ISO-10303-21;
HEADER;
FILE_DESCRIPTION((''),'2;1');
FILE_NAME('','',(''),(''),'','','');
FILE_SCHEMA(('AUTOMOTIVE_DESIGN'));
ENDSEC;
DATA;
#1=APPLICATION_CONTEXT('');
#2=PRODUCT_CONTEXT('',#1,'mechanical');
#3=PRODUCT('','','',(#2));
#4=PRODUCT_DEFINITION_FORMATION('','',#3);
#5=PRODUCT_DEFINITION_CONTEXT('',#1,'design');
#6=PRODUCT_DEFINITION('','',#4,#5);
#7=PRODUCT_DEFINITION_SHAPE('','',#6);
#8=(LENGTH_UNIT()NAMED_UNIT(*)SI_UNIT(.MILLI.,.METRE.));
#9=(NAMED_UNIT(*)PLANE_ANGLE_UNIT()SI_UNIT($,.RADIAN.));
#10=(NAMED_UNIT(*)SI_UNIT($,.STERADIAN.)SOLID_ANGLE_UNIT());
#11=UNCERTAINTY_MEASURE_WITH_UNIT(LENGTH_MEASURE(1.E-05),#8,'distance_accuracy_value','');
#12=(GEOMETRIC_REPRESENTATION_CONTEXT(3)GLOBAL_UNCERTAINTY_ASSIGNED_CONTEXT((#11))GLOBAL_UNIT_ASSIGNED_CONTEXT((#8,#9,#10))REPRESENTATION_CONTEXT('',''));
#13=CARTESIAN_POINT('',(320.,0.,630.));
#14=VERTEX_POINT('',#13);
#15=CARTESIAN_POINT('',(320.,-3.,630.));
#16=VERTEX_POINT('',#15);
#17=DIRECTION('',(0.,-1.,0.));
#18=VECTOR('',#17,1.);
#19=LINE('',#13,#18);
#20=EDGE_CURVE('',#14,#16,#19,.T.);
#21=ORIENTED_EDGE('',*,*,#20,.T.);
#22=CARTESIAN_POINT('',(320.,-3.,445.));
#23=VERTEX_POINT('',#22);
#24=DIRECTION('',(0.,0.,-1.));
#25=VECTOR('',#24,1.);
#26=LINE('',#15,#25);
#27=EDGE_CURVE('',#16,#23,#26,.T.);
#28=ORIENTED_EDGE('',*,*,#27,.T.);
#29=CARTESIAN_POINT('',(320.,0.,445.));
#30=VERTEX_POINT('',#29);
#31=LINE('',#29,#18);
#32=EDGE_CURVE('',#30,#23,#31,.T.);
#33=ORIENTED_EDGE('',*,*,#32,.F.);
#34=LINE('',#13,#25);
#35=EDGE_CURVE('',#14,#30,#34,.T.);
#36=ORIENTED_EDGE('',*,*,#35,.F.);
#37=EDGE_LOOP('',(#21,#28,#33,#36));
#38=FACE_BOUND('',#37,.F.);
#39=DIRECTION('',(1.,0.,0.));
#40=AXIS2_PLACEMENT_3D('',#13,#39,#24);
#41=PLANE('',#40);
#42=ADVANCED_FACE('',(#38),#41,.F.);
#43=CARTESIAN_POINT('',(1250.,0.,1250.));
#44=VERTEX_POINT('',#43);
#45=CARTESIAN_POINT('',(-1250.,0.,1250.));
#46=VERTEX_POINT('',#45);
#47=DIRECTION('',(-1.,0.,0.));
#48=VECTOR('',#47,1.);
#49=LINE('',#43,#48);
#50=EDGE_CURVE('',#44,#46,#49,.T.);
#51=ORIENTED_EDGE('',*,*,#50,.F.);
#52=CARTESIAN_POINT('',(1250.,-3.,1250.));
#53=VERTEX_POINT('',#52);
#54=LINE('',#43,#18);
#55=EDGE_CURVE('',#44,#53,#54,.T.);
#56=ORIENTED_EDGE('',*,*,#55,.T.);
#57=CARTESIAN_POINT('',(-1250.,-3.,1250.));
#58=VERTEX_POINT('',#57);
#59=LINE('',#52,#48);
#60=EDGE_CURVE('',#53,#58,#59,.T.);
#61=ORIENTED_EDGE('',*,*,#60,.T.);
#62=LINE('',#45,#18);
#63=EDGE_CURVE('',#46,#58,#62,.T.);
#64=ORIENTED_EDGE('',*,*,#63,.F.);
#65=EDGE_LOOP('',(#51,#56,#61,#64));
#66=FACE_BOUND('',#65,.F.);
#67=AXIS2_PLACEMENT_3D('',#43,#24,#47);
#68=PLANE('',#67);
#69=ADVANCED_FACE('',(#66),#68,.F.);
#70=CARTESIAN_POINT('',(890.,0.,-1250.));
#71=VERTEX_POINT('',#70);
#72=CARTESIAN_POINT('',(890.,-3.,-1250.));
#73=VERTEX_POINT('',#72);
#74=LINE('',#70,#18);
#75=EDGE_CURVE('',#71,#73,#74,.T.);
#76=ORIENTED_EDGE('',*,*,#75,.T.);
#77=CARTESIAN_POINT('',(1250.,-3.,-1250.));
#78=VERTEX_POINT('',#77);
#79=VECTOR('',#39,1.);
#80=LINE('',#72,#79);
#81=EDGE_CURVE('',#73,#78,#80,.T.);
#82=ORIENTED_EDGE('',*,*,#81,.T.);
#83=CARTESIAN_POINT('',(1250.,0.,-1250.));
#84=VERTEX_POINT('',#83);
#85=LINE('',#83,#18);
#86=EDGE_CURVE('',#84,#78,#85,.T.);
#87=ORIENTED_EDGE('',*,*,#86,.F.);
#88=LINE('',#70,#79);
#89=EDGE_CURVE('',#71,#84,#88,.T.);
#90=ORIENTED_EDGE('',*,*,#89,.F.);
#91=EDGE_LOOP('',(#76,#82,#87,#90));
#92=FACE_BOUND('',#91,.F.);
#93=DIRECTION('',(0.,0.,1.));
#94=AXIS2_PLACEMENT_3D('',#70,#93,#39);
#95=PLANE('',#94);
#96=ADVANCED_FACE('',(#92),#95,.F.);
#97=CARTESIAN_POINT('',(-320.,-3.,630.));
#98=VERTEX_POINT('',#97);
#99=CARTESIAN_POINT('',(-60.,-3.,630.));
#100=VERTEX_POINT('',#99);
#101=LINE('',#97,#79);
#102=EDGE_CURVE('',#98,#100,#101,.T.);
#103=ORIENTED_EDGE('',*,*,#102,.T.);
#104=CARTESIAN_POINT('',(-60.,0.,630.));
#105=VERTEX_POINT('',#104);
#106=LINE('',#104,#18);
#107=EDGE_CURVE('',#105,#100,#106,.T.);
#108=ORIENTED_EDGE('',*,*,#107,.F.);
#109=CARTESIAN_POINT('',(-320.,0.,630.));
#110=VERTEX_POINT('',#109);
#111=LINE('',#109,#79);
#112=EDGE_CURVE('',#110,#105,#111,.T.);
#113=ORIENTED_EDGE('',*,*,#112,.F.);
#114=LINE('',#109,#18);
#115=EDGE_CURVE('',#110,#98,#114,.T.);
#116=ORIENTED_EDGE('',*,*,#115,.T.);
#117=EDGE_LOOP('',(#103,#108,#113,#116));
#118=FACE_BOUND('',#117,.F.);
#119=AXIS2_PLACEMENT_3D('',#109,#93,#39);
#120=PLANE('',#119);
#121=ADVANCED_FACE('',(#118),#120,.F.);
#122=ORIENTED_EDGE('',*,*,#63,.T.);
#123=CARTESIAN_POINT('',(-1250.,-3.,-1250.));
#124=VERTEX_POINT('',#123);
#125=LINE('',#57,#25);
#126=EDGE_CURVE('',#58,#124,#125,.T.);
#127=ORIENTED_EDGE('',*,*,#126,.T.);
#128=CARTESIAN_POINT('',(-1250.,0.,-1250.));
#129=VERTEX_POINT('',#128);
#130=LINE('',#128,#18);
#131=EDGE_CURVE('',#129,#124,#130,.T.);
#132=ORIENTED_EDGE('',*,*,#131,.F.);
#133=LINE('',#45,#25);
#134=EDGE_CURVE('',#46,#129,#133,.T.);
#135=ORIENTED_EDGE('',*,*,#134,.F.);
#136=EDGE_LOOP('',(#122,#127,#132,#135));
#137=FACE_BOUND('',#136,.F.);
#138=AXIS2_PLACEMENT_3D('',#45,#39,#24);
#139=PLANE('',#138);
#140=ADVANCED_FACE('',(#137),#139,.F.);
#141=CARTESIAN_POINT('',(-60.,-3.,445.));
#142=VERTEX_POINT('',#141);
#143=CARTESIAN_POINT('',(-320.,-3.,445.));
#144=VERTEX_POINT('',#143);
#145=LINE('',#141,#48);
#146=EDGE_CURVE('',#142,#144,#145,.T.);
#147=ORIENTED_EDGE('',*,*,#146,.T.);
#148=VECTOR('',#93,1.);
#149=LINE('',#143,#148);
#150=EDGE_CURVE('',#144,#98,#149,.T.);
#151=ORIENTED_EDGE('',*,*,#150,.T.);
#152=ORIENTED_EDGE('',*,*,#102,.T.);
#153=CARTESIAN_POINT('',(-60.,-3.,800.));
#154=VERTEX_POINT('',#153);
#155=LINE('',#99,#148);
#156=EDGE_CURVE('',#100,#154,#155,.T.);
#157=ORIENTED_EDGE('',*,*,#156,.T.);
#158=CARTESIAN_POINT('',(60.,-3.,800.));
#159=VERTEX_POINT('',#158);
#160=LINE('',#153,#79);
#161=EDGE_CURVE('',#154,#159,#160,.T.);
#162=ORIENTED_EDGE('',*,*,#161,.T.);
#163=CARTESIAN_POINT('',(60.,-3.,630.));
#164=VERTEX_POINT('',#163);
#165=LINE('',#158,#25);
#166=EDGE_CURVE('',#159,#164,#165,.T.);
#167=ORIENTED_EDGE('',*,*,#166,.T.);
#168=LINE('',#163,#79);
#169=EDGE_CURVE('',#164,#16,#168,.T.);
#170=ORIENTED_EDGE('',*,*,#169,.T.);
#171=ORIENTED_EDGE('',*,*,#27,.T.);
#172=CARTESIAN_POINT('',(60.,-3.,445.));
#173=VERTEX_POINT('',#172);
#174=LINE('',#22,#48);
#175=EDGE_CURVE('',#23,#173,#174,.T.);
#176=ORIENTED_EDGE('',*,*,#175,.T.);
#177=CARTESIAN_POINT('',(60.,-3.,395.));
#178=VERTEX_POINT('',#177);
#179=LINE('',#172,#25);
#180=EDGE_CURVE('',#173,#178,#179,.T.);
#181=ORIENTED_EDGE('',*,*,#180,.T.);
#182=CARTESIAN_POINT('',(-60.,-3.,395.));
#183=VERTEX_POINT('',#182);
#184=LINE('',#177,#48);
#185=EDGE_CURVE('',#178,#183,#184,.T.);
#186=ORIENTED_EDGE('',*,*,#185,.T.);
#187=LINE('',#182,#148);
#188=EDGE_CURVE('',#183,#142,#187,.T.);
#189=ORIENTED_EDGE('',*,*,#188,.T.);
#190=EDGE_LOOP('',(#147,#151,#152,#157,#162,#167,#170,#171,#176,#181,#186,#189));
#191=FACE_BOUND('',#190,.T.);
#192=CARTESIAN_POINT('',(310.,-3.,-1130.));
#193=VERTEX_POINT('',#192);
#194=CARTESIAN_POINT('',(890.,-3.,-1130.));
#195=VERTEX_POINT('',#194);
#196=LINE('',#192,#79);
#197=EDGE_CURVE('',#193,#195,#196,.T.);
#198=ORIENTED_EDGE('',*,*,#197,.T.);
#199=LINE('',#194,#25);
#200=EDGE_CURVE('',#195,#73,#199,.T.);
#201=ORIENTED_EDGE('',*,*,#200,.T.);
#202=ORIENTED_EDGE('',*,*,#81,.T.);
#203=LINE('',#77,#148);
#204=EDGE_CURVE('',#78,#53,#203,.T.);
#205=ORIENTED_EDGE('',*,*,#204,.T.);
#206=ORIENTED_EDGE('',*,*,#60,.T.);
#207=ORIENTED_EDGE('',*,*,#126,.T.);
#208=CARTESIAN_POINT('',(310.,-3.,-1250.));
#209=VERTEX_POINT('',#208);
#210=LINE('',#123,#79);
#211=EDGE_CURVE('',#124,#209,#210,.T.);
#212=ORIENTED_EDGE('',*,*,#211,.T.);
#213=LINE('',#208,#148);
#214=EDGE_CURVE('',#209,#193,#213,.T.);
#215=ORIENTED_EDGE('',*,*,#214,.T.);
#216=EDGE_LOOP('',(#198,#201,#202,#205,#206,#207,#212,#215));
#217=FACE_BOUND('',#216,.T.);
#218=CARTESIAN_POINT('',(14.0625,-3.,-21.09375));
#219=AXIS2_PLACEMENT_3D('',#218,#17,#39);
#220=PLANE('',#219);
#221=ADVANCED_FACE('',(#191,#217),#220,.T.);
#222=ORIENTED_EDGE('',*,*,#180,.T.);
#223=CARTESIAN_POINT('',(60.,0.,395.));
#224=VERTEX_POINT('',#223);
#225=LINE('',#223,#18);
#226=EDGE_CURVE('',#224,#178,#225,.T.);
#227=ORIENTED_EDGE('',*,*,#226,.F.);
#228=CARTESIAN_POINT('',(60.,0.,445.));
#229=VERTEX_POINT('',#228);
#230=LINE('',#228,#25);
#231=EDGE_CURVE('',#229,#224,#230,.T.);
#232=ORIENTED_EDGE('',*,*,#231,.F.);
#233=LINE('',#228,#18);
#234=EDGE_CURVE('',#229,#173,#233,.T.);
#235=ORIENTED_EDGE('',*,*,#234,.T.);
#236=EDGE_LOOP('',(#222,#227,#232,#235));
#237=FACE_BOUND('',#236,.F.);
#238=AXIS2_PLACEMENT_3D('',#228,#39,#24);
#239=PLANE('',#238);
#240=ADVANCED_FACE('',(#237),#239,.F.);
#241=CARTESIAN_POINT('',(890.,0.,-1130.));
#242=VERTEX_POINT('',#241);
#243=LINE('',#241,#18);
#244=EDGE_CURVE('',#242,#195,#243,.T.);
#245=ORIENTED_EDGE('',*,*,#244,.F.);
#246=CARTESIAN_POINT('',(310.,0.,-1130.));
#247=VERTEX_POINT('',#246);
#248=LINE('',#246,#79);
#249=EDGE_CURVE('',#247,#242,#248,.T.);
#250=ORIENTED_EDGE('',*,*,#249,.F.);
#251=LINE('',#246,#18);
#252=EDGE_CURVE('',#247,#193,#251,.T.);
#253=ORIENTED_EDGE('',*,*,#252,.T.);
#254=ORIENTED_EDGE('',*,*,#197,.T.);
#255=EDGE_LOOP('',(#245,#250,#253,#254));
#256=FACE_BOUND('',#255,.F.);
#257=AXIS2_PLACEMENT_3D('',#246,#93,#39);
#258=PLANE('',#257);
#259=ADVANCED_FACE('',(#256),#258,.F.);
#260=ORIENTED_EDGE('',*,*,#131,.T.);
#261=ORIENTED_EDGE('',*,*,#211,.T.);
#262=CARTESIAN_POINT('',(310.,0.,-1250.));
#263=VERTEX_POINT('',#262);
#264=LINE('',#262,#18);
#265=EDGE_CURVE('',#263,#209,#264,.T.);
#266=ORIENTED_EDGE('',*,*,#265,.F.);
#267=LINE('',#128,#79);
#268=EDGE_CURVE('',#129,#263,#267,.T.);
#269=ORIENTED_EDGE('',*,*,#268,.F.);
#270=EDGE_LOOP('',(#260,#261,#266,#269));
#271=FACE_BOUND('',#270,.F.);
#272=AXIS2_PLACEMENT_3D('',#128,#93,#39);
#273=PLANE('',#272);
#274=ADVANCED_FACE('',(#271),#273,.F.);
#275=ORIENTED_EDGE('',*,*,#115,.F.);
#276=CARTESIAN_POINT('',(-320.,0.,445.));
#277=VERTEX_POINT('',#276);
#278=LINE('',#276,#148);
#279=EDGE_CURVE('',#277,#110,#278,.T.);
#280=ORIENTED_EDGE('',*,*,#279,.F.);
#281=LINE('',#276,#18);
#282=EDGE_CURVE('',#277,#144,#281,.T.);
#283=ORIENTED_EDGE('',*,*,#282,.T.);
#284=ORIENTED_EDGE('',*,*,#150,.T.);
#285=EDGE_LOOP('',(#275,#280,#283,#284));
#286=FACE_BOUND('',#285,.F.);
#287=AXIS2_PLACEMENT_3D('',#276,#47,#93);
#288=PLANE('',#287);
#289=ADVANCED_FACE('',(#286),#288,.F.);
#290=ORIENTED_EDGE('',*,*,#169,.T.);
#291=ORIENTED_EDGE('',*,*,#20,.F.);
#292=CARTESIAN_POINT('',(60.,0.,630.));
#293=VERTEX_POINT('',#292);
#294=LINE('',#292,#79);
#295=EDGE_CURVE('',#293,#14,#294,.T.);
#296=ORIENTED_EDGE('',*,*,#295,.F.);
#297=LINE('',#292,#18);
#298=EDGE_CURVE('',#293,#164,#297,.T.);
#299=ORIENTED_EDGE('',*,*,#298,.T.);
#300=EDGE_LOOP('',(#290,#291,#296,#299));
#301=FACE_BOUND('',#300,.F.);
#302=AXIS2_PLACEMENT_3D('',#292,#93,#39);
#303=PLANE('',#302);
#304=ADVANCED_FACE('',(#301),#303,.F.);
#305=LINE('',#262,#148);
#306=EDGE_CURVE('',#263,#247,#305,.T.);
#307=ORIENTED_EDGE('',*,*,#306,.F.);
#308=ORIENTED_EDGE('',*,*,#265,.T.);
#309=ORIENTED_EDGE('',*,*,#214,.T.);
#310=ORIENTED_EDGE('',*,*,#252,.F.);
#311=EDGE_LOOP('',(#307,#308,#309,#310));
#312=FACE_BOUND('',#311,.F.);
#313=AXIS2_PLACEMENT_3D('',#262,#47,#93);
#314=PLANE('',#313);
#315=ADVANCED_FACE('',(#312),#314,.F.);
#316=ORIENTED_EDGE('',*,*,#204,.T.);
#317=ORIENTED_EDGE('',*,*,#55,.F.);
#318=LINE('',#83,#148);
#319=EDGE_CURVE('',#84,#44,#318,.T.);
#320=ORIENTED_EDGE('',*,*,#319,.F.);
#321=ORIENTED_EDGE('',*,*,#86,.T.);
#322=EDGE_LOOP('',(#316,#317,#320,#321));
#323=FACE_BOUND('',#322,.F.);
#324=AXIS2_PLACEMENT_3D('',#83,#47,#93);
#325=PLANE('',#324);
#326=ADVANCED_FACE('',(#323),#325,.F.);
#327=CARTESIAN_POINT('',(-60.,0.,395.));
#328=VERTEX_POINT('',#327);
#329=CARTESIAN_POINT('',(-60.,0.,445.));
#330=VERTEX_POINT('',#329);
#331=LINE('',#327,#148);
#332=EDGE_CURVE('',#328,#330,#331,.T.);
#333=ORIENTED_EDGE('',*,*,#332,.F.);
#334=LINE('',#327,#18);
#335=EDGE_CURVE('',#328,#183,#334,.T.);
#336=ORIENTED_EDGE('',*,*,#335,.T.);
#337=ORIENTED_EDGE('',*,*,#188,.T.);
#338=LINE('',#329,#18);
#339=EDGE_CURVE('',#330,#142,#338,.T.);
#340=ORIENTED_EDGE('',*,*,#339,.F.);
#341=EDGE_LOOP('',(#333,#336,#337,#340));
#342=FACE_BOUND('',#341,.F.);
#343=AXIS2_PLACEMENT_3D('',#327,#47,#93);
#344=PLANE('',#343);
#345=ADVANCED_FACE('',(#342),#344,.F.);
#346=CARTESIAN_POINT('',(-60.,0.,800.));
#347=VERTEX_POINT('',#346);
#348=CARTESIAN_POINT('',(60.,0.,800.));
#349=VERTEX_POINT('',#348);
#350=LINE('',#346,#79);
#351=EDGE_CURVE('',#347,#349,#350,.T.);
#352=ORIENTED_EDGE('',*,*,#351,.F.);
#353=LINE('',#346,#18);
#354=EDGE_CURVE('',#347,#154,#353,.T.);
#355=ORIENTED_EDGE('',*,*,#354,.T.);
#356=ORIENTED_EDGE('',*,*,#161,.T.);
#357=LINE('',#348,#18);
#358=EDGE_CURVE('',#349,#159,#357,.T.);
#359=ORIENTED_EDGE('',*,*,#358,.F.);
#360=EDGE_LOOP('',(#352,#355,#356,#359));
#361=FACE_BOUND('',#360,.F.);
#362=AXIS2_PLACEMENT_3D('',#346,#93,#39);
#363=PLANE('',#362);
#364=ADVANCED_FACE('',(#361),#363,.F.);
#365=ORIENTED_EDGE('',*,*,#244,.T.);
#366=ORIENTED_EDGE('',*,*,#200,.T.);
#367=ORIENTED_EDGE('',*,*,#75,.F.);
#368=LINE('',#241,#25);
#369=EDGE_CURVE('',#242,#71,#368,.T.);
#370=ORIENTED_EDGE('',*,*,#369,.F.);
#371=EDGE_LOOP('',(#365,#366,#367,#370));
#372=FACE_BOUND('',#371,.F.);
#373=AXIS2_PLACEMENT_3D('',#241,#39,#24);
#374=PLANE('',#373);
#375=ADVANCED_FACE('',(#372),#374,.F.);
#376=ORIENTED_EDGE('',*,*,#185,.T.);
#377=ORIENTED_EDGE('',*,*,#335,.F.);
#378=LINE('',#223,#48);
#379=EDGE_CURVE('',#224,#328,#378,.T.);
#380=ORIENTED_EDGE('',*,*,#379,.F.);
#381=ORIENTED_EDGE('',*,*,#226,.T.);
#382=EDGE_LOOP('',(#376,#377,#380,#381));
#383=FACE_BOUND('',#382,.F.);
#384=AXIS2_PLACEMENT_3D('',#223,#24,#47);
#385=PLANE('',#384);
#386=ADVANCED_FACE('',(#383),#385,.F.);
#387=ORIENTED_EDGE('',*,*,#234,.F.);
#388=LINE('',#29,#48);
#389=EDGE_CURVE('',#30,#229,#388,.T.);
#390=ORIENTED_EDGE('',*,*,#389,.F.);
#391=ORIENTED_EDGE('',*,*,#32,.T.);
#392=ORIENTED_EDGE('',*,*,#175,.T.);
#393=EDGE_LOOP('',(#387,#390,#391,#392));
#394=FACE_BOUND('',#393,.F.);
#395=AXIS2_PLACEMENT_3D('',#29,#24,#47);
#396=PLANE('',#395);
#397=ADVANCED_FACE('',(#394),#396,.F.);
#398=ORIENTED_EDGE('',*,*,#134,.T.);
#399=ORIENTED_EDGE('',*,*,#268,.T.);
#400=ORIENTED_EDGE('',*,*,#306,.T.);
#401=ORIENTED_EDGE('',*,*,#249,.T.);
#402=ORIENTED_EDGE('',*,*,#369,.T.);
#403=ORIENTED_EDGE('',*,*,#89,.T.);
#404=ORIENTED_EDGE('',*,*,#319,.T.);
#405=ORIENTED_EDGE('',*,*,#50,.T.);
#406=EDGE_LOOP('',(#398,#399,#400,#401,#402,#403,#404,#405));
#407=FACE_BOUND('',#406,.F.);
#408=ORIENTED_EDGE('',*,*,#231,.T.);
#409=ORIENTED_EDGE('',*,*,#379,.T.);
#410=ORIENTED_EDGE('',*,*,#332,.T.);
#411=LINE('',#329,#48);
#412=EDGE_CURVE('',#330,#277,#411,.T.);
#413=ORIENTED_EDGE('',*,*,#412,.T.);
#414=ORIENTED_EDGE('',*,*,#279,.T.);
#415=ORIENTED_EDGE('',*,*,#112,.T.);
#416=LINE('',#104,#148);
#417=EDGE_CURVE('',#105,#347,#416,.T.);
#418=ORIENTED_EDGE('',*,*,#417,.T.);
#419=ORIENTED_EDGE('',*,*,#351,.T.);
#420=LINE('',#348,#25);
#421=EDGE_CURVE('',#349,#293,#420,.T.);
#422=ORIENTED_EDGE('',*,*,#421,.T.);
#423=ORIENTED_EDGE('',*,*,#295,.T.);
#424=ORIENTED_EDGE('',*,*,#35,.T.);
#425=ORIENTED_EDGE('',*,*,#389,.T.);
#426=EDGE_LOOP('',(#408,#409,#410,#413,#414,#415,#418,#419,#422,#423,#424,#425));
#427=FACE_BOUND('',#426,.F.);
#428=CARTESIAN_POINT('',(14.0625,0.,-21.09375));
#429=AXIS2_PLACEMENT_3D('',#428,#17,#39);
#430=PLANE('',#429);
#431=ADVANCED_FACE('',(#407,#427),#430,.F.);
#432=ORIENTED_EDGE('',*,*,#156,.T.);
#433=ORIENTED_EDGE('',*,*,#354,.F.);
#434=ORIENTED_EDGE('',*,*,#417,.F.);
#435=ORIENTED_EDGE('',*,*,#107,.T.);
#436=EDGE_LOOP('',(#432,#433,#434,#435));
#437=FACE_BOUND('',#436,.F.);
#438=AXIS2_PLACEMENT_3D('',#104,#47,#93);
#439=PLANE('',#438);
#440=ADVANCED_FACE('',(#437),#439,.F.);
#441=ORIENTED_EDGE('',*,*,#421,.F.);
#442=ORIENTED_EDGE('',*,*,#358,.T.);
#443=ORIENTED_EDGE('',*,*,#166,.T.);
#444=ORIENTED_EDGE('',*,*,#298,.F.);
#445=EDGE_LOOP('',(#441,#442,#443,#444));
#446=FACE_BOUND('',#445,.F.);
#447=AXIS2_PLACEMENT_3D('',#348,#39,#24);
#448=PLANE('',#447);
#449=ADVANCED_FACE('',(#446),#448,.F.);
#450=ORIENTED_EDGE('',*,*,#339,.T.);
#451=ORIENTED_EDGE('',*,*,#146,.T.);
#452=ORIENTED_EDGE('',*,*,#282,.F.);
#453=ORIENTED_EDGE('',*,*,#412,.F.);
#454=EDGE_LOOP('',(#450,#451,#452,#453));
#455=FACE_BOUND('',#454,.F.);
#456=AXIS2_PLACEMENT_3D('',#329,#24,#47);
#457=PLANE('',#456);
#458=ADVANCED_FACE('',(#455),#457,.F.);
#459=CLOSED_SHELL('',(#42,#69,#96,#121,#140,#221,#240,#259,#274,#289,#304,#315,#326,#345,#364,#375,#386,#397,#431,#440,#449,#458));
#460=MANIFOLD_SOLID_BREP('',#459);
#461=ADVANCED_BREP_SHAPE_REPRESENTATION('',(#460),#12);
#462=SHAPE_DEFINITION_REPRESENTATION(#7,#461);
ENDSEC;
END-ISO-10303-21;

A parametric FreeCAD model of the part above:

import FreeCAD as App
import Part
import Sketcher
Q = App.Units.Quantity


def add_polygon(sketch, points):
    """Adds a closed chain of lines whose ends are joined by coincident constraints."""
    first, n = sketch.GeometryCount, len(points)
    for a, b in zip(points, points[1:] + points[:1]):
        sketch.addGeometry(Part.LineSegment(App.Vector(*a, 0), App.Vector(*b, 0)), False)
    for i in range(n):
        sketch.addConstraint(Sketcher.Constraint("Coincident", first + i, 2, first + (i + 1) % n, 1))

doc = App.newDocument("Part")
body = doc.addObject("PartDesign::Body", "Body")

# Sketch on XZ plane
sketch1 = doc.addObject("Sketcher::SketchObject", "Sketch")
body.addObject(sketch1)
sketch1.AttachmentSupport = (doc.XZ_Plane, [""])
sketch1.MapMode = "FlatFace"
add_polygon(sketch1, [(1250, -1250), (1250, 1250), (-1250, 1250), (-1250, -1250), (310, -1250), (310, -1130), (890, -1130), (890, -1250)])  # lines 0-7
add_polygon(sketch1, [(-60, 445), (-320, 445), (-320, 630), (-60, 630), (-60, 800), (60, 800), (60, 630), (320, 630), (320, 445), (60, 445), (60, 395), (-60, 395)])  # lines 8-19
sketch1.addConstraint(Sketcher.Constraint("Vertical", 0))
sketch1.addConstraint(Sketcher.Constraint("Horizontal", 1))
sketch1.addConstraint(Sketcher.Constraint("Vertical", 2))
sketch1.addConstraint(Sketcher.Constraint("Horizontal", 3))
sketch1.addConstraint(Sketcher.Constraint("Vertical", 4))
sketch1.addConstraint(Sketcher.Constraint("Horizontal", 5))
sketch1.addConstraint(Sketcher.Constraint("Vertical", 6))
sketch1.addConstraint(Sketcher.Constraint("Horizontal", 7))
sketch1.addConstraint(Sketcher.Constraint("Horizontal", 8))
sketch1.addConstraint(Sketcher.Constraint("Vertical", 9))
sketch1.addConstraint(Sketcher.Constraint("Horizontal", 10))
sketch1.addConstraint(Sketcher.Constraint("Vertical", 11))
sketch1.addConstraint(Sketcher.Constraint("Horizontal", 12))
sketch1.addConstraint(Sketcher.Constraint("Vertical", 13))
sketch1.addConstraint(Sketcher.Constraint("Horizontal", 14))
sketch1.addConstraint(Sketcher.Constraint("Vertical", 15))
sketch1.addConstraint(Sketcher.Constraint("Horizontal", 16))
sketch1.addConstraint(Sketcher.Constraint("Vertical", 17))
sketch1.addConstraint(Sketcher.Constraint("Horizontal", 18))
sketch1.addConstraint(Sketcher.Constraint("Vertical", 19))
sketch1.addConstraint(Sketcher.Constraint("Symmetric", 0, 2, 2, 2, -1, 1))
sketch1.addConstraint(Sketcher.Constraint("Symmetric", 10, 2, 13, 2, -2))
sketch1.addConstraint(Sketcher.Constraint("Symmetric", 8, 2, 15, 2, -2))
sketch1.addConstraint(Sketcher.Constraint("Horizontal", 3, 2, 6, 2))
sketch1.addConstraint(Sketcher.Constraint("Vertical", 13, 2, 16, 2))
sketch1.addConstraint(Sketcher.Constraint("Vertical", 11, 2, 18, 2))
sketch1.addConstraint(Sketcher.Constraint("Equal", 1, 0))
sketch1.addConstraint(Sketcher.Constraint("Equal", 18, 4))
sketch1.addConstraint(Sketcher.Constraint("DistanceX", 1, 2, 1, 1, Q("2500 mm")))
sketch1.addConstraint(Sketcher.Constraint("DistanceX", 3, 1, 3, 2, Q("1560 mm")))
sketch1.addConstraint(Sketcher.Constraint("DistanceX", 5, 1, 5, 2, Q("580 mm")))
sketch1.addConstraint(Sketcher.Constraint("DistanceX", 8, 2, 8, 1, Q("260 mm")))
sketch1.addConstraint(Sketcher.Constraint("DistanceX", 12, 1, 12, 2, Q("120 mm")))
sketch1.addConstraint(Sketcher.Constraint("DistanceY", 9, 1, 9, 2, Q("185 mm")))
sketch1.addConstraint(Sketcher.Constraint("DistanceY", 11, 1, 11, 2, Q("170 mm")))
sketch1.addConstraint(Sketcher.Constraint("DistanceY", 17, 2, 17, 1, Q("50 mm")))
sketch1.addConstraint(Sketcher.Constraint("DistanceY", -1, 1, 8, 2, Q("445 mm")))
pad1 = doc.addObject("PartDesign::Pad", "Pad")
body.addObject(pad1)
pad1.Profile = sketch1
pad1.Length = 3

doc.recompute()
